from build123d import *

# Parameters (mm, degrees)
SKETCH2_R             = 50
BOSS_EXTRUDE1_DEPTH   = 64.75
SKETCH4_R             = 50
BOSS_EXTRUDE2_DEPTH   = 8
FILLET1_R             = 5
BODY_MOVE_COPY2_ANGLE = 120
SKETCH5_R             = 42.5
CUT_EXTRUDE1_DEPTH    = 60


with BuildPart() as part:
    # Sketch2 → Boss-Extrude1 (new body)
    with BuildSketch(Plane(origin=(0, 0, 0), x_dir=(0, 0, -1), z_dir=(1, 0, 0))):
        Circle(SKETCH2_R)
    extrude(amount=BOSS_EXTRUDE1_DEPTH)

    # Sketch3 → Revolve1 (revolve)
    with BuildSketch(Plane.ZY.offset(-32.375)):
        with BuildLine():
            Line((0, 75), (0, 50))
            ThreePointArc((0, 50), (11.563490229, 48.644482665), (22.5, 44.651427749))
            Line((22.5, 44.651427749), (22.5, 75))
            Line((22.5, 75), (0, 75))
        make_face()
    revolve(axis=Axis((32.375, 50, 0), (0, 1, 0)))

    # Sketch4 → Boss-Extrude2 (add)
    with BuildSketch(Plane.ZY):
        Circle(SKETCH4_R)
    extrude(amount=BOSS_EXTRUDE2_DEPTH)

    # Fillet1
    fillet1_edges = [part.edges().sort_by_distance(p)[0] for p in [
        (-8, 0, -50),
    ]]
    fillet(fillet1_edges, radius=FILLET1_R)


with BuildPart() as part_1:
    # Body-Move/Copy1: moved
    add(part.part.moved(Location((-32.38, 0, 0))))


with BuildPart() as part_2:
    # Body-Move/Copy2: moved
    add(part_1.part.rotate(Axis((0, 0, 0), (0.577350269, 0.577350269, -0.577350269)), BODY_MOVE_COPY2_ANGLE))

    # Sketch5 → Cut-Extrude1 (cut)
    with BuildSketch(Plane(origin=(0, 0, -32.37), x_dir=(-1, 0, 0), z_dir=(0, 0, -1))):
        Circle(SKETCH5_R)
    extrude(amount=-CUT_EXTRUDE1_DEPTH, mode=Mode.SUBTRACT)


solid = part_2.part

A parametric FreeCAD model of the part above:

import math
import FreeCAD as App
import Part
import Sketcher
from FreeCAD import Vector


def edges_at(feature, points):
    """Names of the edges that pass closest to the given points."""
    edges = feature.Shape.Edges
    near = lambda p: min(range(len(edges)), key=lambda i: edges[i].distToShape(Part.Vertex(*p))[0])
    return sorted({f"Edge{near(p) + 1}" for p in points})

doc = App.newDocument("Part")
body = doc.addObject("PartDesign::Body", "Body")

sketch1 = body.newObject("Sketcher::SketchObject", "Sketch")
sketch1.AttachmentSupport = (doc.getObject("YZ_Plane"), [""])
sketch1.MapMode = "FlatFace"
sketch1.addGeometry(Part.Circle(Vector(0, 0, 0), Vector(0, 0, 1), 50), False)
sketch1.addConstraint([
    Sketcher.Constraint("Coincident", 0, 3, -1, 1),
    Sketcher.Constraint("Diameter", 0, 100.0),
])
pad1 = body.newObject("PartDesign::Pad", "Pad")
pad1.Profile = sketch1
pad1.Length = 64.75

sketch2 = body.newObject("Sketcher::SketchObject", "Sketch001")
sketch2.AttachmentSupport = (doc.getObject("YZ_Plane"), [""])
sketch2.MapMode = "FlatFace"
sketch2.AttachmentOffset = App.Placement(Vector(0, 0, 32.375), App.Rotation())
sketch2.addGeometry([
    Part.LineSegment(Vector(75, 0, 0), Vector(50, 0, 0)),
    Part.ArcOfCircle(Part.Circle(Vector(0, 0, 0), Vector(0, 0, 1), 50), math.radians(0), math.radians(27)),
    Part.LineSegment(Vector(45, 22, 0), Vector(75, 22, 0)),
    Part.LineSegment(Vector(75, 22, 0), Vector(75, 0, 0)),
], False)
sketch2.addConstraint([
    Sketcher.Constraint("Coincident", 0, 2, 1, 1),
    Sketcher.Constraint("Coincident", 1, 2, 2, 1),
    Sketcher.Constraint("Coincident", 2, 2, 3, 1),
    Sketcher.Constraint("Coincident", 3, 2, 0, 1),
    Sketcher.Constraint("Horizontal", 0),
    Sketcher.Constraint("Horizontal", 2),
    Sketcher.Constraint("Vertical", 3),
    Sketcher.Constraint("Coincident", 1, 3, -1, 1),
    Sketcher.Constraint("PointOnObject", 0, 2, -1),
    Sketcher.Constraint("Radius", 1, 50.0),
    Sketcher.Constraint("DistanceX", 0, 2, 0, 1, 25.0),
    Sketcher.Constraint("DistanceY", 3, 2, 3, 1, 22.5),
])
revolution = body.newObject("PartDesign::Revolution", "Revolution")
revolution.Profile = sketch2
revolution.ReferenceAxis = (sketch2, ["H_Axis"])
revolution.Angle = 360

sketch3 = body.newObject("Sketcher::SketchObject", "Sketch002")
sketch3.AttachmentSupport = (doc.getObject("YZ_Plane"), [""])
sketch3.MapMode = "FlatFace"
sketch3.addGeometry(Part.Circle(Vector(0, 0, 0), Vector(0, 0, 1), 50), False)
sketch3.addConstraint([
    Sketcher.Constraint("Coincident", 0, 3, -1, 1),
    Sketcher.Constraint("Diameter", 0, 100.0),
])
pad2 = body.newObject("PartDesign::Pad", "Pad001")
pad2.Profile = sketch3
pad2.Length = 8
pad2.Reversed = True
doc.recompute()

fillet = body.newObject("PartDesign::Fillet", "Fillet")
fillet.Base = (pad2, edges_at(pad2, [(-8, 0, -50)]))
fillet.Radius = 5
body2 = doc.addObject("PartDesign::Body", "Body001")
doc.recompute()

body.Placement = App.Placement(Vector(-32.38, 0, 0), App.Rotation(Vector(0, 0, 1), 0))
boolean = body2.newObject("PartDesign::Boolean", "Boolean")
boolean.Type = "Fuse"
boolean.addObjects([body])
body3 = doc.addObject("PartDesign::Body", "Body002")
doc.recompute()

body2.Placement = App.Placement(Vector(0, 0, 0), App.Rotation(Vector(0.577350269, 0.577350269, -0.577350269), 120))
boolean2 = body3.newObject("PartDesign::Boolean", "Boolean001")
boolean2.Type = "Fuse"
boolean2.addObjects([body2])

sketch4 = body3.newObject("Sketcher::SketchObject", "Sketch003")
sketch4.AttachmentSupport = (doc.getObject("XY_Plane002"), [""])
sketch4.MapMode = "FlatFace"
sketch4.AttachmentOffset = App.Placement(Vector(0, 0, -32.37), App.Rotation())
sketch4.addGeometry(Part.Circle(Vector(0, 0, 0), Vector(0, 0, 1), 42), False)
sketch4.addConstraint([
    Sketcher.Constraint("Coincident", 0, 3, -1, 1),
    Sketcher.Constraint("Diameter", 0, 85.0),
])
pocket1 = body3.newObject("PartDesign::Pocket", "Pocket")
pocket1.Profile = sketch4
pocket1.Length = 60
pocket1.Reversed = True

doc.recompute()
